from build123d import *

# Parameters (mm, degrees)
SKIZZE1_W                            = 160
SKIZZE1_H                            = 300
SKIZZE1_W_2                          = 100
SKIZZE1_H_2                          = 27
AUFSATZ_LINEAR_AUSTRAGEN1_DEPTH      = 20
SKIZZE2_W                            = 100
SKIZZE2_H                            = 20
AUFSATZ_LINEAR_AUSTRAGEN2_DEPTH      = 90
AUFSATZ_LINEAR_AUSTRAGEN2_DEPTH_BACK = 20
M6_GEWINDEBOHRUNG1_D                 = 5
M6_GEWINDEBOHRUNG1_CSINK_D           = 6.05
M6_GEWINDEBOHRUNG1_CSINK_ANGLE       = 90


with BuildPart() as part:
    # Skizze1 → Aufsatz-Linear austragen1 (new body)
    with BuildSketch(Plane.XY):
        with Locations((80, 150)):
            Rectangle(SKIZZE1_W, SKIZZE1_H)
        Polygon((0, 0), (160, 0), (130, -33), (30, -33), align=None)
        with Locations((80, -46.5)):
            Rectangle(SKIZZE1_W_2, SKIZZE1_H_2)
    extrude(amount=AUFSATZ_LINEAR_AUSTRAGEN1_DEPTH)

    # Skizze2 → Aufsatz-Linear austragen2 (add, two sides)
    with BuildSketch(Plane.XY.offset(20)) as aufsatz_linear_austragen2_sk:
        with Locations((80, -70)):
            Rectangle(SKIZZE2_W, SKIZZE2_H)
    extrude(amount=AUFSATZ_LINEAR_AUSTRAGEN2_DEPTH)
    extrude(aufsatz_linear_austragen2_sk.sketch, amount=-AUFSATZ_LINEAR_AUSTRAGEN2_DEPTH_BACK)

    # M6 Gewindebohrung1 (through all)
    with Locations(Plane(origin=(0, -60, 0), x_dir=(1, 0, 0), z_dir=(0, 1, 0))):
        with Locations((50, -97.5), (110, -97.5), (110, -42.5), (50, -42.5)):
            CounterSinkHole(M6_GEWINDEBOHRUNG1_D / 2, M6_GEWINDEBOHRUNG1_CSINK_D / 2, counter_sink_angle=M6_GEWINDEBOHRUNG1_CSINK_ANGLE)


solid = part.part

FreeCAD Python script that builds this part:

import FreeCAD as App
import Part
import Sketcher
Q = App.Units.Quantity


def add_polygon(sketch, points):
    """Adds a closed chain of lines whose ends are joined by coincident constraints."""
    first, n = sketch.GeometryCount, len(points)
    for a, b in zip(points, points[1:] + points[:1]):
        sketch.addGeometry(Part.LineSegment(App.Vector(*a, 0), App.Vector(*b, 0)), False)
    for i in range(n):
        sketch.addConstraint(Sketcher.Constraint("Coincident", first + i, 2, first + (i + 1) % n, 1))

doc = App.newDocument("Part")
body = doc.addObject("PartDesign::Body", "Body")

# Sketch on XY plane
sketch1 = body.newObject("Sketcher::SketchObject", "Sketch")
sketch1.AttachmentSupport = (doc.getObject("XY_Plane"), [""])
sketch1.MapMode = "FlatFace"
add_polygon(sketch1, [(0, 300), (0, 0), (30, -33), (30, -60), (130, -60), (130, -33), (160, 0), (160, 300)])  # lines 0-7
sketch1.addConstraint([
    Sketcher.Constraint("Vertical", 0),
    Sketcher.Constraint("Vertical", 2),
    Sketcher.Constraint("Horizontal", 3),
    Sketcher.Constraint("Vertical", 4),
    Sketcher.Constraint("Vertical", 6),
    Sketcher.Constraint("Horizontal", 7),
    Sketcher.Constraint("Coincident", 0, 2, -1, 1),
    Sketcher.Constraint("PointOnObject", 5, 2, -1),
    Sketcher.Constraint("Horizontal", 1, 2, 4, 2),
    Sketcher.Constraint("Equal", 1, 5),
    Sketcher.Constraint("DistanceX", 3, 1, 3, 2, Q("100 mm")),
    Sketcher.Constraint("DistanceX", 7, 2, 7, 1, Q("160 mm")),
    Sketcher.Constraint("DistanceY", 0, 2, 0, 1, Q("300 mm")),
    Sketcher.Constraint("DistanceY", 2, 2, 2, 1, Q("27 mm")),
    Sketcher.Constraint("DistanceY", 1, 2, -1, 1, Q("33 mm")),
])
pad1 = body.newObject("PartDesign::Pad", "Pad")
pad1.Profile = sketch1
pad1.Length = 20

# Sketch on XY plane
sketch2 = body.newObject("Sketcher::SketchObject", "Sketch001")
sketch2.AttachmentSupport = (doc.getObject("XY_Plane"), [""])
sketch2.MapMode = "FlatFace"
sketch2.AttachmentOffset = App.Placement(App.Vector(0, 0, 20), App.Rotation())
add_polygon(sketch2, [(30, -60), (30, -80), (130, -80), (130, -60)])  # lines 0-3
sketch2.addConstraint([
    Sketcher.Constraint("Vertical", 0),
    Sketcher.Constraint("Horizontal", 1),
    Sketcher.Constraint("Vertical", 2),
    Sketcher.Constraint("Horizontal", 3),
    Sketcher.Constraint("DistanceX", 1, 1, 1, 2, Q("100 mm")),
    Sketcher.Constraint("DistanceY", 0, 2, 0, 1, Q("20 mm")),
    Sketcher.Constraint("DistanceX", -1, 1, 0, 2, Q("30 mm")),
    Sketcher.Constraint("DistanceY", 0, 2, -1, 1, Q("80 mm")),
])
pad2 = body.newObject("PartDesign::Pad", "Pad001")
pad2.Profile = sketch2
pad2.Type = "TwoLengths"
pad2.Length = 90
pad2.Length2 = 20

# Sketch on XZ plane
sketch3 = body.newObject("Sketcher::SketchObject", "Sketch002")
sketch3.AttachmentSupport = (doc.getObject("XZ_Plane"), [""])
sketch3.MapMode = "FlatFace"
sketch3.AttachmentOffset = App.Placement(App.Vector(0, 0, 60), App.Rotation())
sketch3.addGeometry([
    Part.Circle(App.Vector(50, 97.5, 0), App.Vector(0, 0, 1), 2.5),
    Part.Circle(App.Vector(110, 97.5, 0), App.Vector(0, 0, 1), 2.5),
    Part.Circle(App.Vector(110, 42.5, 0), App.Vector(0, 0, 1), 2.5),
    Part.Circle(App.Vector(50, 42.5, 0), App.Vector(0, 0, 1), 2.5),
], False)
sketch3.addConstraint([
    Sketcher.Constraint("Equal", 0, 1),
    Sketcher.Constraint("Equal", 1, 2),
    Sketcher.Constraint("Equal", 2, 3),
    Sketcher.Constraint("Horizontal", 0, 3, 1, 3),
    Sketcher.Constraint("Horizontal", 2, 3, 3, 3),
    Sketcher.Constraint("Vertical", 1, 3, 2, 3),
    Sketcher.Constraint("Vertical", 0, 3, 3, 3),
    Sketcher.Constraint("Diameter", 0, Q("5 mm")),
    Sketcher.Constraint("DistanceX", -1, 1, 0, 3, Q("50 mm")),
    Sketcher.Constraint("DistanceX", -1, 1, 1, 3, Q("110 mm")),
    Sketcher.Constraint("DistanceY", 2, 3, 1, 3, Q("55 mm")),
    Sketcher.Constraint("DistanceY", -1, 1, 0, 3, Q("97.5 mm")),
])
doc.recompute()
hole = body.newObject("PartDesign::Hole", "Hole")
hole.Profile = sketch3
hole.ThreadType = "None"
hole.Diameter = 5
hole.DepthType = "ThroughAll"
hole.HoleCutType = "Countersink"
hole.HoleCutDiameter = 6.05
hole.HoleCutCountersinkAngle = 90
hole.Reversed = True

doc.recompute()
